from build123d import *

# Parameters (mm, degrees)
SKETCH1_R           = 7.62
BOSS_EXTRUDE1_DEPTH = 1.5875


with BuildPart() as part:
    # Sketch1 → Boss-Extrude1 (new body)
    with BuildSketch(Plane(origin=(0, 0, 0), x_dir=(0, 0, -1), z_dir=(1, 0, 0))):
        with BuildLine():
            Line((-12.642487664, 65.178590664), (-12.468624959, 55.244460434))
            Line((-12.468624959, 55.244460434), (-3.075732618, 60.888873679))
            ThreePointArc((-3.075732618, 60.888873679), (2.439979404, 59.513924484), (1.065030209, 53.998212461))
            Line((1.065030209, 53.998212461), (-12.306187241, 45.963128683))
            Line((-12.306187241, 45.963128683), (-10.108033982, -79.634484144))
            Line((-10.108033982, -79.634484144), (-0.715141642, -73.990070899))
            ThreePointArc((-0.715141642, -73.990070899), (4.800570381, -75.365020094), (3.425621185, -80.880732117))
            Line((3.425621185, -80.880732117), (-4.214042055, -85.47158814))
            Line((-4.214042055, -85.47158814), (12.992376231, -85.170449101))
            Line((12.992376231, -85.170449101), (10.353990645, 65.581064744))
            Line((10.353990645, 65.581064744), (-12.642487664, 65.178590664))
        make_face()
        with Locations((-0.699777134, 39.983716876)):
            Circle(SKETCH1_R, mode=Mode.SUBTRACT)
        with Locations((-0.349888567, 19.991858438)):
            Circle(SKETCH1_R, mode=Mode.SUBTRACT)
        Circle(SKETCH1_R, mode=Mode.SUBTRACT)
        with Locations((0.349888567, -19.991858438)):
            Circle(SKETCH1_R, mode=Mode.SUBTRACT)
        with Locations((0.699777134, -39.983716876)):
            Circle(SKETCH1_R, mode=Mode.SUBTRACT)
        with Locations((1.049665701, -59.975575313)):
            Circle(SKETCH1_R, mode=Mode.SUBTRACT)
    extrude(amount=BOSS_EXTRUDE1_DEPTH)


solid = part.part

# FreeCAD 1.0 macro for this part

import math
import FreeCAD as App
import Part
import Sketcher
from FreeCAD import Vector
Q = App.Units.Quantity

doc = App.newDocument("Part")
params = doc.addObject("Spreadsheet::Sheet", "Params")
for row, (alias, value) in enumerate([
    ("sketch1_diameter", "0.6 in"),
    ("pad1_length", "0.0625 in"),
], start=1):
    params.set(f"A{row}", alias)
    params.set(f"B{row}", "=" + value)
    params.setAlias(f"B{row}", alias)

body = doc.addObject("PartDesign::Body", "Body")

# Sketch on YZ plane
sketch1 = body.newObject("Sketcher::SketchObject", "Sketch")
sketch1.AttachmentSupport = (doc.getObject("YZ_Plane"), [""])
sketch1.MapMode = "FlatFace"
sketch1.addGeometry(Part.LineSegment(Vector(65.2, 12.6, 0), Vector(55.2, 12.5, 0)), False)
sketch1.addGeometry(Part.LineSegment(Vector(55.2, 12.5, 0), Vector(60.9, 3.1, 0)), False)
sketch1.addGeometry(Part.ArcOfCircle(Part.Circle(Vector(57.4, 1, 0), Vector(0, 0, 1), 4), math.radians(-149), math.radians(31)), False)
sketch1.addGeometry(Part.LineSegment(Vector(54, -1.1, 0), Vector(46, 12.3, 0)), False)
sketch1.addGeometry(Part.LineSegment(Vector(46, 12.3, 0), Vector(-79.6, 10.1, 0)), False)
sketch1.addGeometry(Part.LineSegment(Vector(-79.6, 10.1, 0), Vector(-74, 0.7, 0)), False)
sketch1.addGeometry(Part.ArcOfCircle(Part.Circle(Vector(-77.4, -1.4, 0), Vector(0, 0, 1), 4), math.radians(-149), math.radians(31)), False)
sketch1.addGeometry(Part.LineSegment(Vector(-80.9, -3.4, 0), Vector(-85.5, 4.2, 0)), False)
sketch1.addGeometry(Part.LineSegment(Vector(-85.5, 4.2, 0), Vector(-85.2, -13, 0)), False)
sketch1.addGeometry(Part.LineSegment(Vector(-85.2, -13, 0), Vector(65.6, -10.4, 0)), False)
sketch1.addGeometry(Part.LineSegment(Vector(65.6, -10.4, 0), Vector(65.2, 12.6, 0)), False)
sketch1.addGeometry(Part.Circle(Vector(-60, -1, 0), Vector(0, 0, 1), 7.6), False)
sketch1.addGeometry(Part.Circle(Vector(-40, -0.7, 0), Vector(0, 0, 1), 7.6), False)
sketch1.addGeometry(Part.Circle(Vector(-20, -0.3, 0), Vector(0, 0, 1), 7.6), False)
sketch1.addGeometry(Part.Circle(Vector(0, 0, 0), Vector(0, 0, 1), 7.6), False)
sketch1.addGeometry(Part.Circle(Vector(20, 0.3, 0), Vector(0, 0, 1), 7.6), False)
sketch1.addGeometry(Part.Circle(Vector(40, 0.7, 0), Vector(0, 0, 1), 7.6), False)
sketch1.addConstraint(Sketcher.Constraint("Coincident", 0, 2, 1, 1))
sketch1.addConstraint(Sketcher.Constraint("Tangent", 1, 2, 2, 2))
sketch1.addConstraint(Sketcher.Constraint("Tangent", 2, 1, 3, 1))
sketch1.addConstraint(Sketcher.Constraint("Coincident", 3, 2, 4, 1))
sketch1.addConstraint(Sketcher.Constraint("Coincident", 4, 2, 5, 1))
sketch1.addConstraint(Sketcher.Constraint("Tangent", 5, 2, 6, 2))
sketch1.addConstraint(Sketcher.Constraint("Tangent", 6, 1, 7, 1))
sketch1.addConstraint(Sketcher.Constraint("Coincident", 7, 2, 8, 1))
sketch1.addConstraint(Sketcher.Constraint("Coincident", 8, 2, 9, 1))
sketch1.addConstraint(Sketcher.Constraint("Coincident", 9, 2, 10, 1))
sketch1.addConstraint(Sketcher.Constraint("Coincident", 10, 2, 0, 1))
sketch1.addConstraint(Sketcher.Constraint("Coincident", 14, 3, -1, 1))
sketch1.addConstraint(Sketcher.Constraint("Equal", 2, 6))
sketch1.addConstraint(Sketcher.Constraint("Equal", 11, 12))
sketch1.addConstraint(Sketcher.Constraint("Equal", 12, 13))
sketch1.addConstraint(Sketcher.Constraint("Equal", 13, 14))
sketch1.addConstraint(Sketcher.Constraint("Equal", 14, 15))
sketch1.addConstraint(Sketcher.Constraint("Equal", 15, 16))
sketch1.addConstraint(Sketcher.Constraint("Symmetric", 13, 3, 15, 3, -1, 1))
sketch1.addConstraint(Sketcher.Constraint("Symmetric", 12, 3, 16, 3, -1, 1))
sketch1.addConstraint(Sketcher.Constraint("Parallel", 1, 3))
sketch1.addConstraint(Sketcher.Constraint("Parallel", 0, 4))
sketch1.addConstraint(Sketcher.Constraint("Parallel", 3, 5))
sketch1.addConstraint(Sketcher.Constraint("Parallel", 5, 7))
sketch1.addConstraint(Sketcher.Constraint("Perpendicular", 4, 8))
sketch1.addConstraint(Sketcher.Constraint("Perpendicular", 8, 9))
sketch1.addConstraint(Sketcher.Constraint("Perpendicular", 9, 10))
sketch1.addConstraint(Sketcher.Constraint("Equal", 1, 5))
sketch1.addConstraint(Sketcher.Constraint("Diameter", 11, Q("0.6 in")))
sketch1.addConstraint(Sketcher.Constraint("Radius", 2, 4.01955))
sketch1.addConstraint(Sketcher.Constraint("DistanceX", 11, 3, 2, 3, Q("4.6227999 in")))
sketch1.addConstraint(Sketcher.Constraint("Distance", 9, 150.7746))
sketch1.addConstraint(Sketcher.Constraint("Distance", 10, 23.0))
sketch1.addConstraint(Sketcher.Constraint("DistanceX", 6, 3, -1, 1, 77.435402))
sketch1.addConstraint(Sketcher.Constraint("DistanceX", 13, 3, 2, 3, 77.435402))
sketch1.addConstraint(Sketcher.Constraint("DistanceX", 15, 3, 0, 2, 35.252602))
sketch1.addConstraint(Sketcher.Constraint("DistanceY", 11, 3, 4, 2, 11.1577))
sketch1.addConstraint(Sketcher.Constraint("DistanceY", 5, 2, 7, 2, 3.4989))
sketch1.addConstraint(Sketcher.Constraint("DistanceY", 3, 2, 10, 2, 0.3363))
sketch1.addConstraint(Sketcher.Constraint("Distance", 0, 9.935652))
sketch1.addConstraint(Sketcher.Constraint("DistanceY", -1, 1, 2, 3, 1.005351))
sketch1.addConstraint(Sketcher.Constraint("DistanceY", 6, 3, -1, 1, 1.35524))
sketch1.addConstraint(Sketcher.Constraint("DistanceX", 13, 3, -1, 1, 19.991858))
sketch1.addConstraint(Sketcher.Constraint("DistanceY", 13, 3, -1, 1, 0.349889))
sketch1.addConstraint(Sketcher.Constraint("DistanceX", 11, 3, 12, 3, 19.991858))
sketch1.addConstraint(Sketcher.Constraint("DistanceY", 11, 3, 12, 3, 0.349889))
sketch1.setExpression("Constraints[28]", "Params.sketch1_diameter")
pad1 = body.newObject("PartDesign::Pad", "Pad")
pad1.Profile = sketch1
pad1.setExpression("Length", "Params.pad1_length")

doc.recompute()
